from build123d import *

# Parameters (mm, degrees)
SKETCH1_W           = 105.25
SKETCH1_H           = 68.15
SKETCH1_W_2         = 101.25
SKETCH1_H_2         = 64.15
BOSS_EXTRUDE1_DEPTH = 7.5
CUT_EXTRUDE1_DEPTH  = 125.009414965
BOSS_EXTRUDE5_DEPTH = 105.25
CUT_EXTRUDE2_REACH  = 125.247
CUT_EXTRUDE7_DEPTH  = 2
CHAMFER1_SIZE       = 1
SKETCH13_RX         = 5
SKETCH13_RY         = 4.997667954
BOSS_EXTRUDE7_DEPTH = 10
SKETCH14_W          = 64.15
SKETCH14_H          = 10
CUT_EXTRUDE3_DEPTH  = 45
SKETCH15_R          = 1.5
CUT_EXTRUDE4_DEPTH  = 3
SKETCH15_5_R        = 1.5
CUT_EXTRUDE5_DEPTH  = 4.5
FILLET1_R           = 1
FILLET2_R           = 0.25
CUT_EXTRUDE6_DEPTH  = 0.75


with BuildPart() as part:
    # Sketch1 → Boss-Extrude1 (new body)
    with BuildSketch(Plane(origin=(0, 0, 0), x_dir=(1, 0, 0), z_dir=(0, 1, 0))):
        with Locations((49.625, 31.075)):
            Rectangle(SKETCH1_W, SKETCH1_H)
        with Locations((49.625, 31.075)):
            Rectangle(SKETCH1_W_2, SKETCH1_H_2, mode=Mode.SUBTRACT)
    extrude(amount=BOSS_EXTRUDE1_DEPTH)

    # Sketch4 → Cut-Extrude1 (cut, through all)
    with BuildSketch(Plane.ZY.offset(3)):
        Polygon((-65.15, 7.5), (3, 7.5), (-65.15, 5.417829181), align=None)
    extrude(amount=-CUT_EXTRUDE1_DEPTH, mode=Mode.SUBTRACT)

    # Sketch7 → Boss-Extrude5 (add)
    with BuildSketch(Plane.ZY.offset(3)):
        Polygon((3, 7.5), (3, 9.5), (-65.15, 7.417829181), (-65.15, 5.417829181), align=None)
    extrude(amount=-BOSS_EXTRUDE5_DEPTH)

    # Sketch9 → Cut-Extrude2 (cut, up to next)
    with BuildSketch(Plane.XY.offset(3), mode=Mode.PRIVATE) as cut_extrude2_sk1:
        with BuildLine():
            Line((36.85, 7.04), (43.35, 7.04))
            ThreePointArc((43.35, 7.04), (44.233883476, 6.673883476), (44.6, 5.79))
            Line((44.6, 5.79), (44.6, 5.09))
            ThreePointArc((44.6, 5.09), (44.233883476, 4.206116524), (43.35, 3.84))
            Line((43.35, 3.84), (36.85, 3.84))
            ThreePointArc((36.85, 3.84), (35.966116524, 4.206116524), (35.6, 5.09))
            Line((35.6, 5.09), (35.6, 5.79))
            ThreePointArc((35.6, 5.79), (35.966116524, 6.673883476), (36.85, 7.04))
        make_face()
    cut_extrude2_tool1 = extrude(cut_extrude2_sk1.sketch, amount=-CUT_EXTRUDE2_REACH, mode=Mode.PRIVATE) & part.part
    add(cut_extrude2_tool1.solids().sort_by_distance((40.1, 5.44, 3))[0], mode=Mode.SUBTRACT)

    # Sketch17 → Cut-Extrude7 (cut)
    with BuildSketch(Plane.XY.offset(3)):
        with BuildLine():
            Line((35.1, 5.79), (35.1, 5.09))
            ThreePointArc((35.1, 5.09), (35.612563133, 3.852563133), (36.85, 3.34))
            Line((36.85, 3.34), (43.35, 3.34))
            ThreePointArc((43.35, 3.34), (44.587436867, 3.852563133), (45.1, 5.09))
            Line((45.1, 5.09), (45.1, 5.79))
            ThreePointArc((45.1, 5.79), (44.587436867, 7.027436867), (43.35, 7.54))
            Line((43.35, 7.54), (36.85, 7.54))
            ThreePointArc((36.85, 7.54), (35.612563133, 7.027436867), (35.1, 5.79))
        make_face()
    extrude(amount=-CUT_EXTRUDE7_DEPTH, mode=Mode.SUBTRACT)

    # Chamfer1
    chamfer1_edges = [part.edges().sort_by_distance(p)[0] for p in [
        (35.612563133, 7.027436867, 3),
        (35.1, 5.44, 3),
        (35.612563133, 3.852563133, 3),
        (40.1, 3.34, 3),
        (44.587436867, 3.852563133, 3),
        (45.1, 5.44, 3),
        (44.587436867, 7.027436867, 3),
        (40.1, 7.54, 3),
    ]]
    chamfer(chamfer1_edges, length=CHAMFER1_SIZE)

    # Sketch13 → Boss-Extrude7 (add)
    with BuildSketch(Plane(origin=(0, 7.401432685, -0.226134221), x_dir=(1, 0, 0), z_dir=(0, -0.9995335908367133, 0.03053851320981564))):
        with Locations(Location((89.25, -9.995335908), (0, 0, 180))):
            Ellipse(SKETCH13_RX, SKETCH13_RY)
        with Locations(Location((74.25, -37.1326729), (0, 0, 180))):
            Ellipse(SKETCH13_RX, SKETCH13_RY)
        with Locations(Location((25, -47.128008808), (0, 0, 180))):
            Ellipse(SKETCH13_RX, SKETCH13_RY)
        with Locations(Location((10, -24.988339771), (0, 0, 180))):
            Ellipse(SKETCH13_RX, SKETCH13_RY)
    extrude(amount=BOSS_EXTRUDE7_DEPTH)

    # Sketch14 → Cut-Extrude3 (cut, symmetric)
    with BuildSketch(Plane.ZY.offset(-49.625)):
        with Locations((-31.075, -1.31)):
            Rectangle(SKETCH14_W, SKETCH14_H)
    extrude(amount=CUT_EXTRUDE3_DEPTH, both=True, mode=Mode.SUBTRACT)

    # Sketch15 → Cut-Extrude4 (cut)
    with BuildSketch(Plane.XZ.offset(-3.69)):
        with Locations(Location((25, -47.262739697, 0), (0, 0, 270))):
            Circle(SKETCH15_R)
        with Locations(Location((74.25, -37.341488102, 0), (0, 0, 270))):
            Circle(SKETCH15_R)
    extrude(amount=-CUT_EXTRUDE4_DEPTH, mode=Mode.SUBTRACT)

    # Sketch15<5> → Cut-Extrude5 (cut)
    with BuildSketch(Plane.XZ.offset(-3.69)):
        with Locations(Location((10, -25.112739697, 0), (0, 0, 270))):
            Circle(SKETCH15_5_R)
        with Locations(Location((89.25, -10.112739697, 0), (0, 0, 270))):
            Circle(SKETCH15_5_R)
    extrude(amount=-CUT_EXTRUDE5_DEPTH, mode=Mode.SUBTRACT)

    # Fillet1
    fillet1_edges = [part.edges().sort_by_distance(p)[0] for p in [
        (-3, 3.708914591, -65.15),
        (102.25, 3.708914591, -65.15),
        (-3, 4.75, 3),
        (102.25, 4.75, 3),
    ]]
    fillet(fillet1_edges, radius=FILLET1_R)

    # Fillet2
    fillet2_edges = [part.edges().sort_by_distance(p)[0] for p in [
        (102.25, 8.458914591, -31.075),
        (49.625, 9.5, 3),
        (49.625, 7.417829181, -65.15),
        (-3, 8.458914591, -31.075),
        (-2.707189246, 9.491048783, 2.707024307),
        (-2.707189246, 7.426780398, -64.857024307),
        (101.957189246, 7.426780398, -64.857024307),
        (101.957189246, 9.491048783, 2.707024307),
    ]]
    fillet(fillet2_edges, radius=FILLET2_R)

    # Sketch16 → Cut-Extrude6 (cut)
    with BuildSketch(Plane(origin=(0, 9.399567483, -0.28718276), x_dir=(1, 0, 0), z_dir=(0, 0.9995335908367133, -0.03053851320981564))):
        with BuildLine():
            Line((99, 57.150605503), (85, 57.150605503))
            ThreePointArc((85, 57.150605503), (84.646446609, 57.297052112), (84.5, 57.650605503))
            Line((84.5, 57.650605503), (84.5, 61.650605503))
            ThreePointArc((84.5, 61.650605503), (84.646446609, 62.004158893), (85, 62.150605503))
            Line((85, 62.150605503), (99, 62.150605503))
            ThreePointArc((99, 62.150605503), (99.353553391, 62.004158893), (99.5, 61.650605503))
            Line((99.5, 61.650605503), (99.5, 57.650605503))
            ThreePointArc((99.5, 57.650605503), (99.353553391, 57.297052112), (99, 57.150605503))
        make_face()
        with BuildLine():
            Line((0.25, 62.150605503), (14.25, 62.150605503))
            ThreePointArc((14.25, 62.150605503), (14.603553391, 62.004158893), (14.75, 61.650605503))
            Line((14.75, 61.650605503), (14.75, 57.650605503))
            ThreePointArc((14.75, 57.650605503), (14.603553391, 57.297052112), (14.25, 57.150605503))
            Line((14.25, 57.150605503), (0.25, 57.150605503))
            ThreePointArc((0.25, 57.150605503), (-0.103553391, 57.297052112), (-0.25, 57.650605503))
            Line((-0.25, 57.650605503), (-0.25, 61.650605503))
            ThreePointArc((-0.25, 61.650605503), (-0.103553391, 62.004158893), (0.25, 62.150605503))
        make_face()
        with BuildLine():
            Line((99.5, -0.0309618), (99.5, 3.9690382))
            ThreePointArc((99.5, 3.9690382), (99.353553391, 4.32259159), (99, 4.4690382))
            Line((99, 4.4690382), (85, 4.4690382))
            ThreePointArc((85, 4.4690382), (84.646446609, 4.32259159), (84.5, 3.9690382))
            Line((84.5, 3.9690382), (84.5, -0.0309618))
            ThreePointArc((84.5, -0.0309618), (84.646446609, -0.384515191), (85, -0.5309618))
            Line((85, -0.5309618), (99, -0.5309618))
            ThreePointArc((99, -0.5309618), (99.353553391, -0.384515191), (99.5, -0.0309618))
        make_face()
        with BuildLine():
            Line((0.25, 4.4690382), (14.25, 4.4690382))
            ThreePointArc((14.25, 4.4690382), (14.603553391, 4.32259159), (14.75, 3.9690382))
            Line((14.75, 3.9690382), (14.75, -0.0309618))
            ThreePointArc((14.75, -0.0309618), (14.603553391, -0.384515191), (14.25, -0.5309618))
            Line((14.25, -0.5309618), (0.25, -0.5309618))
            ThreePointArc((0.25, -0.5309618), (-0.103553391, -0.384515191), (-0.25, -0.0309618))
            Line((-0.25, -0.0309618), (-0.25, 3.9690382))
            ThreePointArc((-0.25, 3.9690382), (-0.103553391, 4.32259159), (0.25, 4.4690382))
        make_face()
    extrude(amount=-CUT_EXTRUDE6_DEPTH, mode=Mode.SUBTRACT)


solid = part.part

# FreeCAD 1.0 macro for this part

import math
import FreeCAD as App
import Part
import Sketcher
from FreeCAD import Vector
Q = App.Units.Quantity


def edges_at(feature, points):
    """Names of the edges that pass closest to the given points."""
    edges = feature.Shape.Edges
    near = lambda p: min(range(len(edges)), key=lambda i: edges[i].distToShape(Part.Vertex(*p))[0])
    return sorted({f"Edge{near(p) + 1}" for p in points})

doc = App.newDocument("Part")
body = doc.addObject("PartDesign::Body", "Body")

sketch1 = body.newObject("Sketcher::SketchObject", "Sketch")
sketch1.AttachmentSupport = (doc.getObject("XZ_Plane"), [""])
sketch1.MapMode = "FlatFace"
sketch1.addGeometry(Part.LineSegment(Vector(-3, -65, 0), Vector(-3, 3, 0)), False)
sketch1.addGeometry(Part.LineSegment(Vector(-3, 3, 0), Vector(102, 3, 0)), False)
sketch1.addGeometry(Part.LineSegment(Vector(102, 3, 0), Vector(102, -65, 0)), False)
sketch1.addGeometry(Part.LineSegment(Vector(102, -65, 0), Vector(-3, -65, 0)), False)
sketch1.addGeometry(Part.LineSegment(Vector(100, 1, 0), Vector(-1, 1, 0)), False)
sketch1.addGeometry(Part.LineSegment(Vector(-1, 1, 0), Vector(-1, -63, 0)), False)
sketch1.addGeometry(Part.LineSegment(Vector(-1, -63, 0), Vector(100, -63, 0)), False)
sketch1.addGeometry(Part.LineSegment(Vector(100, -63, 0), Vector(100, 1, 0)), False)
sketch1.addConstraint(Sketcher.Constraint("Coincident", 0, 2, 1, 1))
sketch1.addConstraint(Sketcher.Constraint("Coincident", 1, 2, 2, 1))
sketch1.addConstraint(Sketcher.Constraint("Coincident", 2, 2, 3, 1))
sketch1.addConstraint(Sketcher.Constraint("Coincident", 3, 2, 0, 1))
sketch1.addConstraint(Sketcher.Constraint("Coincident", 4, 2, 5, 1))
sketch1.addConstraint(Sketcher.Constraint("Coincident", 5, 2, 6, 1))
sketch1.addConstraint(Sketcher.Constraint("Coincident", 6, 2, 7, 1))
sketch1.addConstraint(Sketcher.Constraint("Coincident", 7, 2, 4, 1))
sketch1.addConstraint(Sketcher.Constraint("Vertical", 0))
sketch1.addConstraint(Sketcher.Constraint("Horizontal", 1))
sketch1.addConstraint(Sketcher.Constraint("Vertical", 2))
sketch1.addConstraint(Sketcher.Constraint("Horizontal", 3))
sketch1.addConstraint(Sketcher.Constraint("Horizontal", 4))
sketch1.addConstraint(Sketcher.Constraint("Vertical", 5))
sketch1.addConstraint(Sketcher.Constraint("Horizontal", 6))
sketch1.addConstraint(Sketcher.Constraint("Vertical", 7))
sketch1.addConstraint(Sketcher.Constraint("DistanceX", 0, 2, -1, 1, 3.0))
sketch1.addConstraint(Sketcher.Constraint("DistanceY", -1, 1, 0, 2, 3.0))
sketch1.addConstraint(Sketcher.Constraint("DistanceX", 4, 2, -1, 1, 1.0))
sketch1.addConstraint(Sketcher.Constraint("DistanceY", -1, 1, 4, 2, 1.0))
sketch1.addConstraint(Sketcher.Constraint("DistanceY", 3, 2, 5, 2, 2.0))
sketch1.addConstraint(Sketcher.Constraint("DistanceX", 6, 2, 2, 2, 2.0))
sketch1.addConstraint(Sketcher.Constraint("DistanceX", 1, 1, 1, 2, 105.25))
sketch1.addConstraint(Sketcher.Constraint("DistanceY", 0, 1, 0, 2, 68.15))
pad1 = body.newObject("PartDesign::Pad", "Pad")
pad1.Profile = sketch1
pad1.Length = 7.5
pad1.Reversed = True

sketch2 = body.newObject("Sketcher::SketchObject", "Sketch001")
sketch2.AttachmentSupport = (doc.getObject("YZ_Plane"), [""])
sketch2.MapMode = "FlatFace"
sketch2.AttachmentOffset = App.Placement(Vector(0, 0, -3), App.Rotation())
sketch2.addGeometry(Part.LineSegment(Vector(7.5, 3, 0), Vector(7.5, -65.2, 0)), False)
sketch2.addGeometry(Part.LineSegment(Vector(7.5, -65.2, 0), Vector(5.4, -65.2, 0)), False)
sketch2.addGeometry(Part.LineSegment(Vector(5.4, -65.2, 0), Vector(7.5, 3, 0)), False)
sketch2.addConstraint(Sketcher.Constraint("Coincident", 0, 2, 1, 1))
sketch2.addConstraint(Sketcher.Constraint("Coincident", 1, 2, 2, 1))
sketch2.addConstraint(Sketcher.Constraint("Coincident", 2, 2, 0, 1))
sketch2.addConstraint(Sketcher.Constraint("Vertical", 0))
sketch2.addConstraint(Sketcher.Constraint("Horizontal", 1))
sketch2.addConstraint(Sketcher.Constraint("DistanceY", -1, 1, 2, 2, 3.0))
sketch2.addConstraint(Sketcher.Constraint("DistanceY", 0, 2, 0, 1, 68.15))
sketch2.addConstraint(Sketcher.Constraint("DistanceX", -1, 1, 0, 2, 7.5))
sketch2.addConstraint(Sketcher.Constraint("Angle", 2, Q("88.25 deg")))
pocket1 = body.newObject("PartDesign::Pocket", "Pocket")
pocket1.Profile = sketch2
pocket1.Type = "ThroughAll"
pocket1.Reversed = True

sketch3 = body.newObject("Sketcher::SketchObject", "Sketch002")
sketch3.AttachmentSupport = (doc.getObject("YZ_Plane"), [""])
sketch3.MapMode = "FlatFace"
sketch3.AttachmentOffset = App.Placement(Vector(0, 0, -3), App.Rotation())
sketch3.addGeometry(Part.LineSegment(Vector(7.5, 3, 0), Vector(9.5, 3, 0)), False)
sketch3.addGeometry(Part.LineSegment(Vector(9.5, 3, 0), Vector(7.4, -65.2, 0)), False)
sketch3.addGeometry(Part.LineSegment(Vector(7.4, -65.2, 0), Vector(5.4, -65.2, 0)), False)
sketch3.addGeometry(Part.LineSegment(Vector(5.4, -65.2, 0), Vector(7.5, 3, 0)), False)
sketch3.addConstraint(Sketcher.Constraint("Coincident", 0, 2, 1, 1))
sketch3.addConstraint(Sketcher.Constraint("Coincident", 1, 2, 2, 1))
sketch3.addConstraint(Sketcher.Constraint("Coincident", 2, 2, 3, 1))
sketch3.addConstraint(Sketcher.Constraint("Coincident", 3, 2, 0, 1))
sketch3.addConstraint(Sketcher.Constraint("Horizontal", 0))
sketch3.addConstraint(Sketcher.Constraint("Horizontal", 2))
sketch3.addConstraint(Sketcher.Constraint("Parallel", 1, 3))
sketch3.addConstraint(Sketcher.Constraint("DistanceX", 0, 1, 0, 2, 2.0))
sketch3.addConstraint(Sketcher.Constraint("DistanceY", -1, 1, 0, 2, 3.0))
sketch3.addConstraint(Sketcher.Constraint("DistanceX", -1, 1, 0, 2, 9.5))
sketch3.addConstraint(Sketcher.Constraint("Angle", 1, Q("-91.75 deg")))
sketch3.addConstraint(Sketcher.Constraint("DistanceY", 1, 2, -1, 1, 65.15))
pad2 = body.newObject("PartDesign::Pad", "Pad001")
pad2.Profile = sketch3
pad2.Length = 105.25

sketch4 = body.newObject("Sketcher::SketchObject", "Sketch003")
sketch4.AttachmentSupport = (doc.getObject("XY_Plane"), [""])
sketch4.MapMode = "FlatFace"
sketch4.AttachmentOffset = App.Placement(Vector(0, 0, 3), App.Rotation())
sketch4.addGeometry(Part.LineSegment(Vector(43.4, 7, 0), Vector(36.9, 7, 0)), False)
sketch4.addGeometry(Part.ArcOfCircle(Part.Circle(Vector(36.9, 5.8, 0), Vector(0, 0, 1), 1.3), math.radians(90), math.radians(180)), False)
sketch4.addGeometry(Part.LineSegment(Vector(35.6, 5.8, 0), Vector(35.6, 5.1, 0)), False)
sketch4.addGeometry(Part.ArcOfCircle(Part.Circle(Vector(36.9, 5.1, 0), Vector(0, 0, 1), 1.3), math.radians(-180), math.radians(-90)), False)
sketch4.addGeometry(Part.LineSegment(Vector(36.9, 3.8, 0), Vector(43.4, 3.8, 0)), False)
sketch4.addGeometry(Part.ArcOfCircle(Part.Circle(Vector(43.3, 5.1, 0), Vector(0, 0, 1), 1.3), math.radians(-90), math.radians(0)), False)
sketch4.addGeometry(Part.LineSegment(Vector(44.6, 5.1, 0), Vector(44.6, 5.8, 0)), False)
sketch4.addGeometry(Part.ArcOfCircle(Part.Circle(Vector(43.3, 5.8, 0), Vector(0, 0, 1), 1.3), math.radians(0), math.radians(90)), False)
sketch4.addConstraint(Sketcher.Constraint("Tangent", 0, 2, 1, 1))
sketch4.addConstraint(Sketcher.Constraint("Tangent", 1, 2, 2, 1))
sketch4.addConstraint(Sketcher.Constraint("Tangent", 2, 2, 3, 1))
sketch4.addConstraint(Sketcher.Constraint("Tangent", 3, 2, 4, 1))
sketch4.addConstraint(Sketcher.Constraint("Tangent", 4, 2, 5, 1))
sketch4.addConstraint(Sketcher.Constraint("Tangent", 5, 2, 6, 1))
sketch4.addConstraint(Sketcher.Constraint("Tangent", 6, 2, 7, 1))
sketch4.addConstraint(Sketcher.Constraint("Tangent", 7, 2, 0, 1))
sketch4.addConstraint(Sketcher.Constraint("Horizontal", 0))
sketch4.addConstraint(Sketcher.Constraint("Vertical", 2))
sketch4.addConstraint(Sketcher.Constraint("Horizontal", 4))
sketch4.addConstraint(Sketcher.Constraint("Vertical", 6))
sketch4.addConstraint(Sketcher.Constraint("Equal", 1, 3))
sketch4.addConstraint(Sketcher.Constraint("Equal", 3, 5))
sketch4.addConstraint(Sketcher.Constraint("Equal", 5, 7))
sketch4.addConstraint(Sketcher.Constraint("Radius", 1, 1.25))
sketch4.addConstraint(Sketcher.Constraint("DistanceX", 0, 2, 0, 1, 6.5))
sketch4.addConstraint(Sketcher.Constraint("DistanceY", 2, 2, 2, 1, 0.7))
sketch4.addConstraint(Sketcher.Constraint("DistanceX", -1, 1, 1, 2, 35.6))
sketch4.addConstraint(Sketcher.Constraint("DistanceY", -1, 1, 1, 3, 5.79))
pocket2 = body.newObject("PartDesign::Pocket", "Pocket001")
pocket2.Profile = sketch4
pocket2.Type = "UpToFirst"

sketch5 = body.newObject("Sketcher::SketchObject", "Sketch004")
sketch5.AttachmentSupport = (doc.getObject("XY_Plane"), [""])
sketch5.MapMode = "FlatFace"
sketch5.AttachmentOffset = App.Placement(Vector(0, 0, 3), App.Rotation())
sketch5.addGeometry(Part.LineSegment(Vector(35.1, 5.8, 0), Vector(35.1, 5.1, 0)), False)
sketch5.addGeometry(Part.ArcOfCircle(Part.Circle(Vector(36.9, 5.1, 0), Vector(0, 0, 1), 1.8), math.radians(180), math.radians(270)), False)
sketch5.addGeometry(Part.LineSegment(Vector(36.9, 3.3, 0), Vector(43.4, 3.3, 0)), False)
sketch5.addGeometry(Part.ArcOfCircle(Part.Circle(Vector(43.4, 5.1, 0), Vector(0, 0, 1), 1.8), math.radians(-90), math.radians(0)), False)
sketch5.addGeometry(Part.LineSegment(Vector(45.1, 5.1, 0), Vector(45.1, 5.8, 0)), False)
sketch5.addGeometry(Part.ArcOfCircle(Part.Circle(Vector(43.4, 5.8, 0), Vector(0, 0, 1), 1.8), math.radians(0), math.radians(90)), False)
sketch5.addGeometry(Part.LineSegment(Vector(43.4, 7.5, 0), Vector(36.9, 7.5, 0)), False)
sketch5.addGeometry(Part.ArcOfCircle(Part.Circle(Vector(36.9, 5.8, 0), Vector(0, 0, 1), 1.8), math.radians(90), math.radians(180)), False)
sketch5.addConstraint(Sketcher.Constraint("Tangent", 0, 2, 1, 1))
sketch5.addConstraint(Sketcher.Constraint("Tangent", 1, 2, 2, 1))
sketch5.addConstraint(Sketcher.Constraint("Tangent", 2, 2, 3, 1))
sketch5.addConstraint(Sketcher.Constraint("Tangent", 3, 2, 4, 1))
sketch5.addConstraint(Sketcher.Constraint("Tangent", 4, 2, 5, 1))
sketch5.addConstraint(Sketcher.Constraint("Tangent", 5, 2, 6, 1))
sketch5.addConstraint(Sketcher.Constraint("Tangent", 6, 2, 7, 1))
sketch5.addConstraint(Sketcher.Constraint("Tangent", 7, 2, 0, 1))
sketch5.addConstraint(Sketcher.Constraint("Vertical", 0))
sketch5.addConstraint(Sketcher.Constraint("Horizontal", 2))
sketch5.addConstraint(Sketcher.Constraint("Vertical", 4))
sketch5.addConstraint(Sketcher.Constraint("Horizontal", 6))
sketch5.addConstraint(Sketcher.Constraint("Equal", 1, 3))
sketch5.addConstraint(Sketcher.Constraint("Equal", 3, 5))
sketch5.addConstraint(Sketcher.Constraint("Equal", 5, 7))
sketch5.addConstraint(Sketcher.Constraint("Radius", 1, 1.75))
sketch5.addConstraint(Sketcher.Constraint("DistanceX", 2, 1, 2, 2, 6.5))
sketch5.addConstraint(Sketcher.Constraint("DistanceY", 0, 2, 0, 1, 0.7))
sketch5.addConstraint(Sketcher.Constraint("DistanceX", -1, 1, 0, 2, 35.1))
sketch5.addConstraint(Sketcher.Constraint("DistanceY", -1, 1, 1, 3, 5.09))
pocket3 = body.newObject("PartDesign::Pocket", "Pocket002")
pocket3.Profile = sketch5
pocket3.Length = 2
doc.recompute()

chamfer = body.newObject("PartDesign::Chamfer", "Chamfer")
chamfer.Base = (pocket3, edges_at(pocket3, [
    (35.613, 7.027, 3),
    (35.1, 5.44, 3),
    (35.613, 3.853, 3),
    (40.1, 3.34, 3),
    (44.587, 3.853, 3),
    (45.1, 5.44, 3),
    (44.587, 7.027, 3),
    (40.1, 7.54, 3),
]))
chamfer.Size = 1

sketch6 = body.newObject("Sketcher::SketchObject", "Sketch005")
sketch6.Placement = App.Placement(Vector(0, 7.401433, -0.226134), App.Rotation(Vector(1, 0, 0), Vector(0, 0.030538513, 0.999533591), Vector(0, -0.999533591, 0.030538513), "ZXY"))
sketch6.addGeometry(Part.Ellipse(Vector(84.25, -9.995336, 0), Vector(89.25, -14.993004, 0), Vector(89.25, -9.995336, 0)), False)
sketch6.addGeometry(Part.Ellipse(Vector(69.25, -37.132673, 0), Vector(74.25, -42.130341, 0), Vector(74.25, -37.132673, 0)), False)
sketch6.addGeometry(Part.Ellipse(Vector(20, -47.128009, 0), Vector(25, -52.125677, 0), Vector(25, -47.128009, 0)), False)
sketch6.addGeometry(Part.Ellipse(Vector(5, -24.98834, 0), Vector(10, -29.986008, 0), Vector(10, -24.98834, 0)), False)
sketch6.addConstraint(Sketcher.Constraint("Block", 0))
sketch6.addConstraint(Sketcher.Constraint("Block", 1))
sketch6.addConstraint(Sketcher.Constraint("Block", 2))
sketch6.addConstraint(Sketcher.Constraint("Block", 3))
pad3 = body.newObject("PartDesign::Pad", "Pad002")
pad3.Profile = sketch6
pad3.Length = 10

sketch7 = body.newObject("Sketcher::SketchObject", "Sketch006")
sketch7.AttachmentSupport = (doc.getObject("YZ_Plane"), [""])
sketch7.MapMode = "FlatFace"
sketch7.AttachmentOffset = App.Placement(Vector(0, 0, 49.625), App.Rotation())
sketch7.addGeometry(Part.LineSegment(Vector(4, -63, 0), Vector(-6, -63, 0)), False)
sketch7.addGeometry(Part.LineSegment(Vector(-6, -63, 0), Vector(-6, 1, 0)), False)
sketch7.addGeometry(Part.LineSegment(Vector(-6, 1, 0), Vector(4, 1, 0)), False)
sketch7.addGeometry(Part.LineSegment(Vector(4, 1, 0), Vector(4, -63, 0)), False)
sketch7.addConstraint(Sketcher.Constraint("Coincident", 0, 2, 1, 1))
sketch7.addConstraint(Sketcher.Constraint("Coincident", 1, 2, 2, 1))
sketch7.addConstraint(Sketcher.Constraint("Coincident", 2, 2, 3, 1))
sketch7.addConstraint(Sketcher.Constraint("Coincident", 3, 2, 0, 1))
sketch7.addConstraint(Sketcher.Constraint("Horizontal", 0))
sketch7.addConstraint(Sketcher.Constraint("Vertical", 1))
sketch7.addConstraint(Sketcher.Constraint("Horizontal", 2))
sketch7.addConstraint(Sketcher.Constraint("Vertical", 3))
sketch7.addConstraint(Sketcher.Constraint("DistanceX", 0, 2, 0, 1, 10.0))
sketch7.addConstraint(Sketcher.Constraint("DistanceY", -1, 1, 1, 2, 1.0))
sketch7.addConstraint(Sketcher.Constraint("DistanceY", 1, 1, 1, 2, 64.15))
sketch7.addConstraint(Sketcher.Constraint("DistanceX", 0, 2, -1, 1, 6.31))
pocket4 = body.newObject("PartDesign::Pocket", "Pocket003")
pocket4.Profile = sketch7
pocket4.Length = 90
pocket4.Midplane = True

sketch8 = body.newObject("Sketcher::SketchObject", "Sketch007")
sketch8.AttachmentSupport = (doc.getObject("XZ_Plane"), [""])
sketch8.MapMode = "FlatFace"
sketch8.AttachmentOffset = App.Placement(Vector(0, 0, -3.69), App.Rotation())
sketch8.addGeometry(Part.Circle(Vector(25, -47.3, 0), Vector(0, 0, 1), 1.5), False)
sketch8.addGeometry(Part.Circle(Vector(74.2, -37.3, 0), Vector(0, 0, 1), 1.5), False)
sketch8.addConstraint(Sketcher.Constraint("Equal", 0, 1))
sketch8.addConstraint(Sketcher.Constraint("Diameter", 0, 3.0))
sketch8.addConstraint(Sketcher.Constraint("DistanceX", -1, 1, 0, 3, 25.0))
sketch8.addConstraint(Sketcher.Constraint("DistanceX", -1, 1, 1, 3, 74.25))
sketch8.addConstraint(Sketcher.Constraint("DistanceY", 0, 3, -1, 1, 47.26274))
sketch8.addConstraint(Sketcher.Constraint("DistanceY", 1, 3, -1, 1, 37.341488))
pocket5 = body.newObject("PartDesign::Pocket", "Pocket004")
pocket5.Profile = sketch8
pocket5.Length = 3

sketch9 = body.newObject("Sketcher::SketchObject", "Sketch008")
sketch9.AttachmentSupport = (doc.getObject("XZ_Plane"), [""])
sketch9.MapMode = "FlatFace"
sketch9.AttachmentOffset = App.Placement(Vector(0, 0, -3.69), App.Rotation())
sketch9.addGeometry(Part.Circle(Vector(10, -25.1, 0), Vector(0, 0, 1), 1.5), False)
sketch9.addGeometry(Part.Circle(Vector(89.2, -10.1, 0), Vector(0, 0, 1), 1.5), False)
sketch9.addConstraint(Sketcher.Constraint("Equal", 0, 1))
sketch9.addConstraint(Sketcher.Constraint("Diameter", 0, 3.0))
sketch9.addConstraint(Sketcher.Constraint("DistanceX", -1, 1, 0, 3, 10.0))
sketch9.addConstraint(Sketcher.Constraint("DistanceY", 0, 3, 1, 3, 15.0))
sketch9.addConstraint(Sketcher.Constraint("DistanceX", -1, 1, 1, 3, 89.25))
sketch9.addConstraint(Sketcher.Constraint("DistanceY", 0, 3, -1, 1, 25.11274))
pocket6 = body.newObject("PartDesign::Pocket", "Pocket005")
pocket6.Profile = sketch9
pocket6.Length = 4.5
doc.recompute()

fillet = body.newObject("PartDesign::Fillet", "Fillet")
fillet.Base = (pocket6, edges_at(pocket6, [
    (-3, 3.709, -65.15),
    (102.25, 3.709, -65.15),
    (-3, 4.75, 3),
    (102.25, 4.75, 3),
]))
fillet.Radius = 1
doc.recompute()

fillet2 = body.newObject("PartDesign::Fillet", "Fillet001")
fillet2.Base = (fillet, edges_at(fillet, [
    (102.25, 8.459, -31.075),
    (49.625, 9.5, 3),
    (49.625, 7.418, -65.15),
    (-3, 8.459, -31.075),
    (-2.707, 9.491, 2.707),
    (-2.707, 7.427, -64.857),
    (101.957, 7.427, -64.857),
    (101.957, 9.491, 2.707),
]))
fillet2.Radius = 0.25

sketch10 = body.newObject("Sketcher::SketchObject", "Sketch009")
sketch10.Placement = App.Placement(Vector(0, 9.399567, -0.287183), App.Rotation(Vector(1, 0, 0), Vector(0, -0.030538513, -0.999533591), Vector(0, 0.999533591, -0.030538513), "ZXY"))
sketch10.addGeometry(Part.LineSegment(Vector(85, 57.15, 0), Vector(99, 57.15, 0)), False)
sketch10.addGeometry(Part.ArcOfCircle(Part.Circle(Vector(99, 57.65, 0), Vector(0, 0, 1), 0.5), math.radians(-90), math.radians(0)), False)
sketch10.addGeometry(Part.LineSegment(Vector(99.5, 57.65, 0), Vector(99.5, 61.65, 0)), False)
sketch10.addGeometry(Part.ArcOfCircle(Part.Circle(Vector(99, 61.65, 0), Vector(0, 0, 1), 0.5), math.radians(0), math.radians(90)), False)
sketch10.addGeometry(Part.LineSegment(Vector(99, 62.15, 0), Vector(85, 62.15, 0)), False)
sketch10.addGeometry(Part.ArcOfCircle(Part.Circle(Vector(85, 61.65, 0), Vector(0, 0, 1), 0.5), math.radians(90), math.radians(180)), False)
sketch10.addGeometry(Part.LineSegment(Vector(84.5, 61.65, 0), Vector(84.5, 57.65, 0)), False)
sketch10.addGeometry(Part.ArcOfCircle(Part.Circle(Vector(85, 57.65, 0), Vector(0, 0, 1), 0.5), math.radians(180), math.radians(270)), False)
sketch10.addGeometry(Part.LineSegment(Vector(14.25, 62.15, 0), Vector(0.25, 62.15, 0)), False)
sketch10.addGeometry(Part.ArcOfCircle(Part.Circle(Vector(0.25, 61.65, 0), Vector(0, 0, 1), 0.5), math.radians(90), math.radians(180)), False)
sketch10.addGeometry(Part.LineSegment(Vector(-0.25, 61.65, 0), Vector(-0.25, 57.65, 0)), False)
sketch10.addGeometry(Part.ArcOfCircle(Part.Circle(Vector(0.25, 57.65, 0), Vector(0, 0, 1), 0.5), math.radians(180), math.radians(270)), False)
sketch10.addGeometry(Part.LineSegment(Vector(0.25, 57.15, 0), Vector(14.25, 57.15, 0)), False)
sketch10.addGeometry(Part.ArcOfCircle(Part.Circle(Vector(14.25, 57.65, 0), Vector(0, 0, 1), 0.5), math.radians(-90), math.radians(0)), False)
sketch10.addGeometry(Part.LineSegment(Vector(14.75, 57.65, 0), Vector(14.75, 61.65, 0)), False)
sketch10.addGeometry(Part.ArcOfCircle(Part.Circle(Vector(14.25, 61.65, 0), Vector(0, 0, 1), 0.5), math.radians(0), math.radians(90)), False)
sketch10.addGeometry(Part.LineSegment(Vector(99.5, -0.03, 0), Vector(99.5, 3.97, 0)), False)
sketch10.addGeometry(Part.ArcOfCircle(Part.Circle(Vector(99, 3.97, 0), Vector(0, 0, 1), 0.5), math.radians(0), math.radians(90)), False)
sketch10.addGeometry(Part.LineSegment(Vector(99, 4.47, 0), Vector(85, 4.47, 0)), False)
sketch10.addGeometry(Part.ArcOfCircle(Part.Circle(Vector(85, 3.97, 0), Vector(0, 0, 1), 0.5), math.radians(90), math.radians(180)), False)
sketch10.addGeometry(Part.LineSegment(Vector(84.5, 3.97, 0), Vector(84.5, -0.03, 0)), False)
sketch10.addGeometry(Part.ArcOfCircle(Part.Circle(Vector(85, -0.03, 0), Vector(0, 0, 1), 0.5), math.radians(180), math.radians(270)), False)
sketch10.addGeometry(Part.LineSegment(Vector(85, -0.53, 0), Vector(99, -0.53, 0)), False)
sketch10.addGeometry(Part.ArcOfCircle(Part.Circle(Vector(99, -0.03, 0), Vector(0, 0, 1), 0.5), math.radians(-90), math.radians(0)), False)
sketch10.addGeometry(Part.LineSegment(Vector(14.25, 4.47, 0), Vector(0.25, 4.47, 0)), False)
sketch10.addGeometry(Part.ArcOfCircle(Part.Circle(Vector(0.25, 3.97, 0), Vector(0, 0, 1), 0.5), math.radians(90), math.radians(180)), False)
sketch10.addGeometry(Part.LineSegment(Vector(-0.25, 3.97, 0), Vector(-0.25, -0.03, 0)), False)
sketch10.addGeometry(Part.ArcOfCircle(Part.Circle(Vector(0.25, -0.03, 0), Vector(0, 0, 1), 0.5), math.radians(180), math.radians(270)), False)
sketch10.addGeometry(Part.LineSegment(Vector(0.25, -0.53, 0), Vector(14.25, -0.53, 0)), False)
sketch10.addGeometry(Part.ArcOfCircle(Part.Circle(Vector(14.25, -0.03, 0), Vector(0, 0, 1), 0.5), math.radians(-90), math.radians(0)), False)
sketch10.addGeometry(Part.LineSegment(Vector(14.75, -0.03, 0), Vector(14.75, 3.97, 0)), False)
sketch10.addGeometry(Part.ArcOfCircle(Part.Circle(Vector(14.25, 3.97, 0), Vector(0, 0, 1), 0.5), math.radians(0), math.radians(90)), False)
sketch10.addConstraint(Sketcher.Constraint("Tangent", 0, 2, 1, 1))
sketch10.addConstraint(Sketcher.Constraint("Tangent", 1, 2, 2, 1))
sketch10.addConstraint(Sketcher.Constraint("Tangent", 2, 2, 3, 1))
sketch10.addConstraint(Sketcher.Constraint("Tangent", 3, 2, 4, 1))
sketch10.addConstraint(Sketcher.Constraint("Tangent", 4, 2, 5, 1))
sketch10.addConstraint(Sketcher.Constraint("Tangent", 5, 2, 6, 1))
sketch10.addConstraint(Sketcher.Constraint("Tangent", 6, 2, 7, 1))
sketch10.addConstraint(Sketcher.Constraint("Tangent", 7, 2, 0, 1))
sketch10.addConstraint(Sketcher.Constraint("Tangent", 8, 2, 9, 1))
sketch10.addConstraint(Sketcher.Constraint("Tangent", 9, 2, 10, 1))
sketch10.addConstraint(Sketcher.Constraint("Tangent", 10, 2, 11, 1))
sketch10.addConstraint(Sketcher.Constraint("Tangent", 11, 2, 12, 1))
sketch10.addConstraint(Sketcher.Constraint("Tangent", 12, 2, 13, 1))
sketch10.addConstraint(Sketcher.Constraint("Tangent", 13, 2, 14, 1))
sketch10.addConstraint(Sketcher.Constraint("Tangent", 14, 2, 15, 1))
sketch10.addConstraint(Sketcher.Constraint("Tangent", 15, 2, 8, 1))
sketch10.addConstraint(Sketcher.Constraint("Tangent", 16, 2, 17, 1))
sketch10.addConstraint(Sketcher.Constraint("Tangent", 17, 2, 18, 1))
sketch10.addConstraint(Sketcher.Constraint("Tangent", 18, 2, 19, 1))
sketch10.addConstraint(Sketcher.Constraint("Tangent", 19, 2, 20, 1))
sketch10.addConstraint(Sketcher.Constraint("Tangent", 20, 2, 21, 1))
sketch10.addConstraint(Sketcher.Constraint("Tangent", 21, 2, 22, 1))
sketch10.addConstraint(Sketcher.Constraint("Tangent", 22, 2, 23, 1))
sketch10.addConstraint(Sketcher.Constraint("Tangent", 23, 2, 16, 1))
sketch10.addConstraint(Sketcher.Constraint("Tangent", 24, 2, 25, 1))
sketch10.addConstraint(Sketcher.Constraint("Tangent", 25, 2, 26, 1))
sketch10.addConstraint(Sketcher.Constraint("Tangent", 26, 2, 27, 1))
sketch10.addConstraint(Sketcher.Constraint("Tangent", 27, 2, 28, 1))
sketch10.addConstraint(Sketcher.Constraint("Tangent", 28, 2, 29, 1))
sketch10.addConstraint(Sketcher.Constraint("Tangent", 29, 2, 30, 1))
sketch10.addConstraint(Sketcher.Constraint("Tangent", 30, 2, 31, 1))
sketch10.addConstraint(Sketcher.Constraint("Tangent", 31, 2, 24, 1))
sketch10.addConstraint(Sketcher.Constraint("Horizontal", 0))
sketch10.addConstraint(Sketcher.Constraint("Vertical", 2))
sketch10.addConstraint(Sketcher.Constraint("Horizontal", 4))
sketch10.addConstraint(Sketcher.Constraint("Vertical", 6))
sketch10.addConstraint(Sketcher.Constraint("Horizontal", 8))
sketch10.addConstraint(Sketcher.Constraint("Vertical", 10))
sketch10.addConstraint(Sketcher.Constraint("Horizontal", 12))
sketch10.addConstraint(Sketcher.Constraint("Vertical", 14))
sketch10.addConstraint(Sketcher.Constraint("Vertical", 16))
sketch10.addConstraint(Sketcher.Constraint("Horizontal", 18))
sketch10.addConstraint(Sketcher.Constraint("Vertical", 20))
sketch10.addConstraint(Sketcher.Constraint("Horizontal", 22))
sketch10.addConstraint(Sketcher.Constraint("Horizontal", 24))
sketch10.addConstraint(Sketcher.Constraint("Vertical", 26))
sketch10.addConstraint(Sketcher.Constraint("Horizontal", 28))
sketch10.addConstraint(Sketcher.Constraint("Vertical", 30))
sketch10.addConstraint(Sketcher.Constraint("Equal", 1, 3))
sketch10.addConstraint(Sketcher.Constraint("Equal", 3, 5))
sketch10.addConstraint(Sketcher.Constraint("Equal", 5, 7))
sketch10.addConstraint(Sketcher.Constraint("Equal", 7, 9))
sketch10.addConstraint(Sketcher.Constraint("Equal", 9, 11))
sketch10.addConstraint(Sketcher.Constraint("Equal", 11, 13))
sketch10.addConstraint(Sketcher.Constraint("Equal", 13, 15))
sketch10.addConstraint(Sketcher.Constraint("Equal", 15, 17))
sketch10.addConstraint(Sketcher.Constraint("Equal", 17, 19))
sketch10.addConstraint(Sketcher.Constraint("Equal", 19, 21))
sketch10.addConstraint(Sketcher.Constraint("Equal", 21, 23))
sketch10.addConstraint(Sketcher.Constraint("Equal", 23, 25))
sketch10.addConstraint(Sketcher.Constraint("Equal", 25, 27))
sketch10.addConstraint(Sketcher.Constraint("Equal", 27, 29))
sketch10.addConstraint(Sketcher.Constraint("Equal", 29, 31))
sketch10.addConstraint(Sketcher.Constraint("Horizontal", 5, 3, 9, 3))
sketch10.addConstraint(Sketcher.Constraint("Horizontal", 7, 3, 11, 3))
sketch10.addConstraint(Sketcher.Constraint("Horizontal", 19, 3, 25, 3))
sketch10.addConstraint(Sketcher.Constraint("Horizontal", 23, 3, 27, 3))
sketch10.addConstraint(Sketcher.Constraint("Vertical", 3, 3, 17, 3))
sketch10.addConstraint(Sketcher.Constraint("Vertical", 7, 3, 19, 3))
sketch10.addConstraint(Sketcher.Constraint("Vertical", 11, 3, 25, 3))
sketch10.addConstraint(Sketcher.Constraint("Vertical", 15, 3, 29, 3))
sketch10.addConstraint(Sketcher.Constraint("Equal", 4, 8))
sketch10.addConstraint(Sketcher.Constraint("Equal", 14, 16))
sketch10.addConstraint(Sketcher.Constraint("Radius", 1, 0.5))
sketch10.addConstraint(Sketcher.Constraint("DistanceX", 0, 1, 0, 2, 14.0))
sketch10.addConstraint(Sketcher.Constraint("DistanceY", 2, 1, 2, 2, 4.0))
sketch10.addConstraint(Sketcher.Constraint("DistanceX", -1, 1, 1, 3, 99.0))
sketch10.addConstraint(Sketcher.Constraint("DistanceX", -1, 1, 9, 3, 0.25))
sketch10.addConstraint(Sketcher.Constraint("DistanceY", -1, 1, 17, 3, 3.969038))
sketch10.addConstraint(Sketcher.Constraint("DistanceY", -1, 1, 1, 3, 57.650606))
pocket7 = body.newObject("PartDesign::Pocket", "Pocket006")
pocket7.Profile = sketch10
pocket7.Length = 0.75

doc.recompute()
